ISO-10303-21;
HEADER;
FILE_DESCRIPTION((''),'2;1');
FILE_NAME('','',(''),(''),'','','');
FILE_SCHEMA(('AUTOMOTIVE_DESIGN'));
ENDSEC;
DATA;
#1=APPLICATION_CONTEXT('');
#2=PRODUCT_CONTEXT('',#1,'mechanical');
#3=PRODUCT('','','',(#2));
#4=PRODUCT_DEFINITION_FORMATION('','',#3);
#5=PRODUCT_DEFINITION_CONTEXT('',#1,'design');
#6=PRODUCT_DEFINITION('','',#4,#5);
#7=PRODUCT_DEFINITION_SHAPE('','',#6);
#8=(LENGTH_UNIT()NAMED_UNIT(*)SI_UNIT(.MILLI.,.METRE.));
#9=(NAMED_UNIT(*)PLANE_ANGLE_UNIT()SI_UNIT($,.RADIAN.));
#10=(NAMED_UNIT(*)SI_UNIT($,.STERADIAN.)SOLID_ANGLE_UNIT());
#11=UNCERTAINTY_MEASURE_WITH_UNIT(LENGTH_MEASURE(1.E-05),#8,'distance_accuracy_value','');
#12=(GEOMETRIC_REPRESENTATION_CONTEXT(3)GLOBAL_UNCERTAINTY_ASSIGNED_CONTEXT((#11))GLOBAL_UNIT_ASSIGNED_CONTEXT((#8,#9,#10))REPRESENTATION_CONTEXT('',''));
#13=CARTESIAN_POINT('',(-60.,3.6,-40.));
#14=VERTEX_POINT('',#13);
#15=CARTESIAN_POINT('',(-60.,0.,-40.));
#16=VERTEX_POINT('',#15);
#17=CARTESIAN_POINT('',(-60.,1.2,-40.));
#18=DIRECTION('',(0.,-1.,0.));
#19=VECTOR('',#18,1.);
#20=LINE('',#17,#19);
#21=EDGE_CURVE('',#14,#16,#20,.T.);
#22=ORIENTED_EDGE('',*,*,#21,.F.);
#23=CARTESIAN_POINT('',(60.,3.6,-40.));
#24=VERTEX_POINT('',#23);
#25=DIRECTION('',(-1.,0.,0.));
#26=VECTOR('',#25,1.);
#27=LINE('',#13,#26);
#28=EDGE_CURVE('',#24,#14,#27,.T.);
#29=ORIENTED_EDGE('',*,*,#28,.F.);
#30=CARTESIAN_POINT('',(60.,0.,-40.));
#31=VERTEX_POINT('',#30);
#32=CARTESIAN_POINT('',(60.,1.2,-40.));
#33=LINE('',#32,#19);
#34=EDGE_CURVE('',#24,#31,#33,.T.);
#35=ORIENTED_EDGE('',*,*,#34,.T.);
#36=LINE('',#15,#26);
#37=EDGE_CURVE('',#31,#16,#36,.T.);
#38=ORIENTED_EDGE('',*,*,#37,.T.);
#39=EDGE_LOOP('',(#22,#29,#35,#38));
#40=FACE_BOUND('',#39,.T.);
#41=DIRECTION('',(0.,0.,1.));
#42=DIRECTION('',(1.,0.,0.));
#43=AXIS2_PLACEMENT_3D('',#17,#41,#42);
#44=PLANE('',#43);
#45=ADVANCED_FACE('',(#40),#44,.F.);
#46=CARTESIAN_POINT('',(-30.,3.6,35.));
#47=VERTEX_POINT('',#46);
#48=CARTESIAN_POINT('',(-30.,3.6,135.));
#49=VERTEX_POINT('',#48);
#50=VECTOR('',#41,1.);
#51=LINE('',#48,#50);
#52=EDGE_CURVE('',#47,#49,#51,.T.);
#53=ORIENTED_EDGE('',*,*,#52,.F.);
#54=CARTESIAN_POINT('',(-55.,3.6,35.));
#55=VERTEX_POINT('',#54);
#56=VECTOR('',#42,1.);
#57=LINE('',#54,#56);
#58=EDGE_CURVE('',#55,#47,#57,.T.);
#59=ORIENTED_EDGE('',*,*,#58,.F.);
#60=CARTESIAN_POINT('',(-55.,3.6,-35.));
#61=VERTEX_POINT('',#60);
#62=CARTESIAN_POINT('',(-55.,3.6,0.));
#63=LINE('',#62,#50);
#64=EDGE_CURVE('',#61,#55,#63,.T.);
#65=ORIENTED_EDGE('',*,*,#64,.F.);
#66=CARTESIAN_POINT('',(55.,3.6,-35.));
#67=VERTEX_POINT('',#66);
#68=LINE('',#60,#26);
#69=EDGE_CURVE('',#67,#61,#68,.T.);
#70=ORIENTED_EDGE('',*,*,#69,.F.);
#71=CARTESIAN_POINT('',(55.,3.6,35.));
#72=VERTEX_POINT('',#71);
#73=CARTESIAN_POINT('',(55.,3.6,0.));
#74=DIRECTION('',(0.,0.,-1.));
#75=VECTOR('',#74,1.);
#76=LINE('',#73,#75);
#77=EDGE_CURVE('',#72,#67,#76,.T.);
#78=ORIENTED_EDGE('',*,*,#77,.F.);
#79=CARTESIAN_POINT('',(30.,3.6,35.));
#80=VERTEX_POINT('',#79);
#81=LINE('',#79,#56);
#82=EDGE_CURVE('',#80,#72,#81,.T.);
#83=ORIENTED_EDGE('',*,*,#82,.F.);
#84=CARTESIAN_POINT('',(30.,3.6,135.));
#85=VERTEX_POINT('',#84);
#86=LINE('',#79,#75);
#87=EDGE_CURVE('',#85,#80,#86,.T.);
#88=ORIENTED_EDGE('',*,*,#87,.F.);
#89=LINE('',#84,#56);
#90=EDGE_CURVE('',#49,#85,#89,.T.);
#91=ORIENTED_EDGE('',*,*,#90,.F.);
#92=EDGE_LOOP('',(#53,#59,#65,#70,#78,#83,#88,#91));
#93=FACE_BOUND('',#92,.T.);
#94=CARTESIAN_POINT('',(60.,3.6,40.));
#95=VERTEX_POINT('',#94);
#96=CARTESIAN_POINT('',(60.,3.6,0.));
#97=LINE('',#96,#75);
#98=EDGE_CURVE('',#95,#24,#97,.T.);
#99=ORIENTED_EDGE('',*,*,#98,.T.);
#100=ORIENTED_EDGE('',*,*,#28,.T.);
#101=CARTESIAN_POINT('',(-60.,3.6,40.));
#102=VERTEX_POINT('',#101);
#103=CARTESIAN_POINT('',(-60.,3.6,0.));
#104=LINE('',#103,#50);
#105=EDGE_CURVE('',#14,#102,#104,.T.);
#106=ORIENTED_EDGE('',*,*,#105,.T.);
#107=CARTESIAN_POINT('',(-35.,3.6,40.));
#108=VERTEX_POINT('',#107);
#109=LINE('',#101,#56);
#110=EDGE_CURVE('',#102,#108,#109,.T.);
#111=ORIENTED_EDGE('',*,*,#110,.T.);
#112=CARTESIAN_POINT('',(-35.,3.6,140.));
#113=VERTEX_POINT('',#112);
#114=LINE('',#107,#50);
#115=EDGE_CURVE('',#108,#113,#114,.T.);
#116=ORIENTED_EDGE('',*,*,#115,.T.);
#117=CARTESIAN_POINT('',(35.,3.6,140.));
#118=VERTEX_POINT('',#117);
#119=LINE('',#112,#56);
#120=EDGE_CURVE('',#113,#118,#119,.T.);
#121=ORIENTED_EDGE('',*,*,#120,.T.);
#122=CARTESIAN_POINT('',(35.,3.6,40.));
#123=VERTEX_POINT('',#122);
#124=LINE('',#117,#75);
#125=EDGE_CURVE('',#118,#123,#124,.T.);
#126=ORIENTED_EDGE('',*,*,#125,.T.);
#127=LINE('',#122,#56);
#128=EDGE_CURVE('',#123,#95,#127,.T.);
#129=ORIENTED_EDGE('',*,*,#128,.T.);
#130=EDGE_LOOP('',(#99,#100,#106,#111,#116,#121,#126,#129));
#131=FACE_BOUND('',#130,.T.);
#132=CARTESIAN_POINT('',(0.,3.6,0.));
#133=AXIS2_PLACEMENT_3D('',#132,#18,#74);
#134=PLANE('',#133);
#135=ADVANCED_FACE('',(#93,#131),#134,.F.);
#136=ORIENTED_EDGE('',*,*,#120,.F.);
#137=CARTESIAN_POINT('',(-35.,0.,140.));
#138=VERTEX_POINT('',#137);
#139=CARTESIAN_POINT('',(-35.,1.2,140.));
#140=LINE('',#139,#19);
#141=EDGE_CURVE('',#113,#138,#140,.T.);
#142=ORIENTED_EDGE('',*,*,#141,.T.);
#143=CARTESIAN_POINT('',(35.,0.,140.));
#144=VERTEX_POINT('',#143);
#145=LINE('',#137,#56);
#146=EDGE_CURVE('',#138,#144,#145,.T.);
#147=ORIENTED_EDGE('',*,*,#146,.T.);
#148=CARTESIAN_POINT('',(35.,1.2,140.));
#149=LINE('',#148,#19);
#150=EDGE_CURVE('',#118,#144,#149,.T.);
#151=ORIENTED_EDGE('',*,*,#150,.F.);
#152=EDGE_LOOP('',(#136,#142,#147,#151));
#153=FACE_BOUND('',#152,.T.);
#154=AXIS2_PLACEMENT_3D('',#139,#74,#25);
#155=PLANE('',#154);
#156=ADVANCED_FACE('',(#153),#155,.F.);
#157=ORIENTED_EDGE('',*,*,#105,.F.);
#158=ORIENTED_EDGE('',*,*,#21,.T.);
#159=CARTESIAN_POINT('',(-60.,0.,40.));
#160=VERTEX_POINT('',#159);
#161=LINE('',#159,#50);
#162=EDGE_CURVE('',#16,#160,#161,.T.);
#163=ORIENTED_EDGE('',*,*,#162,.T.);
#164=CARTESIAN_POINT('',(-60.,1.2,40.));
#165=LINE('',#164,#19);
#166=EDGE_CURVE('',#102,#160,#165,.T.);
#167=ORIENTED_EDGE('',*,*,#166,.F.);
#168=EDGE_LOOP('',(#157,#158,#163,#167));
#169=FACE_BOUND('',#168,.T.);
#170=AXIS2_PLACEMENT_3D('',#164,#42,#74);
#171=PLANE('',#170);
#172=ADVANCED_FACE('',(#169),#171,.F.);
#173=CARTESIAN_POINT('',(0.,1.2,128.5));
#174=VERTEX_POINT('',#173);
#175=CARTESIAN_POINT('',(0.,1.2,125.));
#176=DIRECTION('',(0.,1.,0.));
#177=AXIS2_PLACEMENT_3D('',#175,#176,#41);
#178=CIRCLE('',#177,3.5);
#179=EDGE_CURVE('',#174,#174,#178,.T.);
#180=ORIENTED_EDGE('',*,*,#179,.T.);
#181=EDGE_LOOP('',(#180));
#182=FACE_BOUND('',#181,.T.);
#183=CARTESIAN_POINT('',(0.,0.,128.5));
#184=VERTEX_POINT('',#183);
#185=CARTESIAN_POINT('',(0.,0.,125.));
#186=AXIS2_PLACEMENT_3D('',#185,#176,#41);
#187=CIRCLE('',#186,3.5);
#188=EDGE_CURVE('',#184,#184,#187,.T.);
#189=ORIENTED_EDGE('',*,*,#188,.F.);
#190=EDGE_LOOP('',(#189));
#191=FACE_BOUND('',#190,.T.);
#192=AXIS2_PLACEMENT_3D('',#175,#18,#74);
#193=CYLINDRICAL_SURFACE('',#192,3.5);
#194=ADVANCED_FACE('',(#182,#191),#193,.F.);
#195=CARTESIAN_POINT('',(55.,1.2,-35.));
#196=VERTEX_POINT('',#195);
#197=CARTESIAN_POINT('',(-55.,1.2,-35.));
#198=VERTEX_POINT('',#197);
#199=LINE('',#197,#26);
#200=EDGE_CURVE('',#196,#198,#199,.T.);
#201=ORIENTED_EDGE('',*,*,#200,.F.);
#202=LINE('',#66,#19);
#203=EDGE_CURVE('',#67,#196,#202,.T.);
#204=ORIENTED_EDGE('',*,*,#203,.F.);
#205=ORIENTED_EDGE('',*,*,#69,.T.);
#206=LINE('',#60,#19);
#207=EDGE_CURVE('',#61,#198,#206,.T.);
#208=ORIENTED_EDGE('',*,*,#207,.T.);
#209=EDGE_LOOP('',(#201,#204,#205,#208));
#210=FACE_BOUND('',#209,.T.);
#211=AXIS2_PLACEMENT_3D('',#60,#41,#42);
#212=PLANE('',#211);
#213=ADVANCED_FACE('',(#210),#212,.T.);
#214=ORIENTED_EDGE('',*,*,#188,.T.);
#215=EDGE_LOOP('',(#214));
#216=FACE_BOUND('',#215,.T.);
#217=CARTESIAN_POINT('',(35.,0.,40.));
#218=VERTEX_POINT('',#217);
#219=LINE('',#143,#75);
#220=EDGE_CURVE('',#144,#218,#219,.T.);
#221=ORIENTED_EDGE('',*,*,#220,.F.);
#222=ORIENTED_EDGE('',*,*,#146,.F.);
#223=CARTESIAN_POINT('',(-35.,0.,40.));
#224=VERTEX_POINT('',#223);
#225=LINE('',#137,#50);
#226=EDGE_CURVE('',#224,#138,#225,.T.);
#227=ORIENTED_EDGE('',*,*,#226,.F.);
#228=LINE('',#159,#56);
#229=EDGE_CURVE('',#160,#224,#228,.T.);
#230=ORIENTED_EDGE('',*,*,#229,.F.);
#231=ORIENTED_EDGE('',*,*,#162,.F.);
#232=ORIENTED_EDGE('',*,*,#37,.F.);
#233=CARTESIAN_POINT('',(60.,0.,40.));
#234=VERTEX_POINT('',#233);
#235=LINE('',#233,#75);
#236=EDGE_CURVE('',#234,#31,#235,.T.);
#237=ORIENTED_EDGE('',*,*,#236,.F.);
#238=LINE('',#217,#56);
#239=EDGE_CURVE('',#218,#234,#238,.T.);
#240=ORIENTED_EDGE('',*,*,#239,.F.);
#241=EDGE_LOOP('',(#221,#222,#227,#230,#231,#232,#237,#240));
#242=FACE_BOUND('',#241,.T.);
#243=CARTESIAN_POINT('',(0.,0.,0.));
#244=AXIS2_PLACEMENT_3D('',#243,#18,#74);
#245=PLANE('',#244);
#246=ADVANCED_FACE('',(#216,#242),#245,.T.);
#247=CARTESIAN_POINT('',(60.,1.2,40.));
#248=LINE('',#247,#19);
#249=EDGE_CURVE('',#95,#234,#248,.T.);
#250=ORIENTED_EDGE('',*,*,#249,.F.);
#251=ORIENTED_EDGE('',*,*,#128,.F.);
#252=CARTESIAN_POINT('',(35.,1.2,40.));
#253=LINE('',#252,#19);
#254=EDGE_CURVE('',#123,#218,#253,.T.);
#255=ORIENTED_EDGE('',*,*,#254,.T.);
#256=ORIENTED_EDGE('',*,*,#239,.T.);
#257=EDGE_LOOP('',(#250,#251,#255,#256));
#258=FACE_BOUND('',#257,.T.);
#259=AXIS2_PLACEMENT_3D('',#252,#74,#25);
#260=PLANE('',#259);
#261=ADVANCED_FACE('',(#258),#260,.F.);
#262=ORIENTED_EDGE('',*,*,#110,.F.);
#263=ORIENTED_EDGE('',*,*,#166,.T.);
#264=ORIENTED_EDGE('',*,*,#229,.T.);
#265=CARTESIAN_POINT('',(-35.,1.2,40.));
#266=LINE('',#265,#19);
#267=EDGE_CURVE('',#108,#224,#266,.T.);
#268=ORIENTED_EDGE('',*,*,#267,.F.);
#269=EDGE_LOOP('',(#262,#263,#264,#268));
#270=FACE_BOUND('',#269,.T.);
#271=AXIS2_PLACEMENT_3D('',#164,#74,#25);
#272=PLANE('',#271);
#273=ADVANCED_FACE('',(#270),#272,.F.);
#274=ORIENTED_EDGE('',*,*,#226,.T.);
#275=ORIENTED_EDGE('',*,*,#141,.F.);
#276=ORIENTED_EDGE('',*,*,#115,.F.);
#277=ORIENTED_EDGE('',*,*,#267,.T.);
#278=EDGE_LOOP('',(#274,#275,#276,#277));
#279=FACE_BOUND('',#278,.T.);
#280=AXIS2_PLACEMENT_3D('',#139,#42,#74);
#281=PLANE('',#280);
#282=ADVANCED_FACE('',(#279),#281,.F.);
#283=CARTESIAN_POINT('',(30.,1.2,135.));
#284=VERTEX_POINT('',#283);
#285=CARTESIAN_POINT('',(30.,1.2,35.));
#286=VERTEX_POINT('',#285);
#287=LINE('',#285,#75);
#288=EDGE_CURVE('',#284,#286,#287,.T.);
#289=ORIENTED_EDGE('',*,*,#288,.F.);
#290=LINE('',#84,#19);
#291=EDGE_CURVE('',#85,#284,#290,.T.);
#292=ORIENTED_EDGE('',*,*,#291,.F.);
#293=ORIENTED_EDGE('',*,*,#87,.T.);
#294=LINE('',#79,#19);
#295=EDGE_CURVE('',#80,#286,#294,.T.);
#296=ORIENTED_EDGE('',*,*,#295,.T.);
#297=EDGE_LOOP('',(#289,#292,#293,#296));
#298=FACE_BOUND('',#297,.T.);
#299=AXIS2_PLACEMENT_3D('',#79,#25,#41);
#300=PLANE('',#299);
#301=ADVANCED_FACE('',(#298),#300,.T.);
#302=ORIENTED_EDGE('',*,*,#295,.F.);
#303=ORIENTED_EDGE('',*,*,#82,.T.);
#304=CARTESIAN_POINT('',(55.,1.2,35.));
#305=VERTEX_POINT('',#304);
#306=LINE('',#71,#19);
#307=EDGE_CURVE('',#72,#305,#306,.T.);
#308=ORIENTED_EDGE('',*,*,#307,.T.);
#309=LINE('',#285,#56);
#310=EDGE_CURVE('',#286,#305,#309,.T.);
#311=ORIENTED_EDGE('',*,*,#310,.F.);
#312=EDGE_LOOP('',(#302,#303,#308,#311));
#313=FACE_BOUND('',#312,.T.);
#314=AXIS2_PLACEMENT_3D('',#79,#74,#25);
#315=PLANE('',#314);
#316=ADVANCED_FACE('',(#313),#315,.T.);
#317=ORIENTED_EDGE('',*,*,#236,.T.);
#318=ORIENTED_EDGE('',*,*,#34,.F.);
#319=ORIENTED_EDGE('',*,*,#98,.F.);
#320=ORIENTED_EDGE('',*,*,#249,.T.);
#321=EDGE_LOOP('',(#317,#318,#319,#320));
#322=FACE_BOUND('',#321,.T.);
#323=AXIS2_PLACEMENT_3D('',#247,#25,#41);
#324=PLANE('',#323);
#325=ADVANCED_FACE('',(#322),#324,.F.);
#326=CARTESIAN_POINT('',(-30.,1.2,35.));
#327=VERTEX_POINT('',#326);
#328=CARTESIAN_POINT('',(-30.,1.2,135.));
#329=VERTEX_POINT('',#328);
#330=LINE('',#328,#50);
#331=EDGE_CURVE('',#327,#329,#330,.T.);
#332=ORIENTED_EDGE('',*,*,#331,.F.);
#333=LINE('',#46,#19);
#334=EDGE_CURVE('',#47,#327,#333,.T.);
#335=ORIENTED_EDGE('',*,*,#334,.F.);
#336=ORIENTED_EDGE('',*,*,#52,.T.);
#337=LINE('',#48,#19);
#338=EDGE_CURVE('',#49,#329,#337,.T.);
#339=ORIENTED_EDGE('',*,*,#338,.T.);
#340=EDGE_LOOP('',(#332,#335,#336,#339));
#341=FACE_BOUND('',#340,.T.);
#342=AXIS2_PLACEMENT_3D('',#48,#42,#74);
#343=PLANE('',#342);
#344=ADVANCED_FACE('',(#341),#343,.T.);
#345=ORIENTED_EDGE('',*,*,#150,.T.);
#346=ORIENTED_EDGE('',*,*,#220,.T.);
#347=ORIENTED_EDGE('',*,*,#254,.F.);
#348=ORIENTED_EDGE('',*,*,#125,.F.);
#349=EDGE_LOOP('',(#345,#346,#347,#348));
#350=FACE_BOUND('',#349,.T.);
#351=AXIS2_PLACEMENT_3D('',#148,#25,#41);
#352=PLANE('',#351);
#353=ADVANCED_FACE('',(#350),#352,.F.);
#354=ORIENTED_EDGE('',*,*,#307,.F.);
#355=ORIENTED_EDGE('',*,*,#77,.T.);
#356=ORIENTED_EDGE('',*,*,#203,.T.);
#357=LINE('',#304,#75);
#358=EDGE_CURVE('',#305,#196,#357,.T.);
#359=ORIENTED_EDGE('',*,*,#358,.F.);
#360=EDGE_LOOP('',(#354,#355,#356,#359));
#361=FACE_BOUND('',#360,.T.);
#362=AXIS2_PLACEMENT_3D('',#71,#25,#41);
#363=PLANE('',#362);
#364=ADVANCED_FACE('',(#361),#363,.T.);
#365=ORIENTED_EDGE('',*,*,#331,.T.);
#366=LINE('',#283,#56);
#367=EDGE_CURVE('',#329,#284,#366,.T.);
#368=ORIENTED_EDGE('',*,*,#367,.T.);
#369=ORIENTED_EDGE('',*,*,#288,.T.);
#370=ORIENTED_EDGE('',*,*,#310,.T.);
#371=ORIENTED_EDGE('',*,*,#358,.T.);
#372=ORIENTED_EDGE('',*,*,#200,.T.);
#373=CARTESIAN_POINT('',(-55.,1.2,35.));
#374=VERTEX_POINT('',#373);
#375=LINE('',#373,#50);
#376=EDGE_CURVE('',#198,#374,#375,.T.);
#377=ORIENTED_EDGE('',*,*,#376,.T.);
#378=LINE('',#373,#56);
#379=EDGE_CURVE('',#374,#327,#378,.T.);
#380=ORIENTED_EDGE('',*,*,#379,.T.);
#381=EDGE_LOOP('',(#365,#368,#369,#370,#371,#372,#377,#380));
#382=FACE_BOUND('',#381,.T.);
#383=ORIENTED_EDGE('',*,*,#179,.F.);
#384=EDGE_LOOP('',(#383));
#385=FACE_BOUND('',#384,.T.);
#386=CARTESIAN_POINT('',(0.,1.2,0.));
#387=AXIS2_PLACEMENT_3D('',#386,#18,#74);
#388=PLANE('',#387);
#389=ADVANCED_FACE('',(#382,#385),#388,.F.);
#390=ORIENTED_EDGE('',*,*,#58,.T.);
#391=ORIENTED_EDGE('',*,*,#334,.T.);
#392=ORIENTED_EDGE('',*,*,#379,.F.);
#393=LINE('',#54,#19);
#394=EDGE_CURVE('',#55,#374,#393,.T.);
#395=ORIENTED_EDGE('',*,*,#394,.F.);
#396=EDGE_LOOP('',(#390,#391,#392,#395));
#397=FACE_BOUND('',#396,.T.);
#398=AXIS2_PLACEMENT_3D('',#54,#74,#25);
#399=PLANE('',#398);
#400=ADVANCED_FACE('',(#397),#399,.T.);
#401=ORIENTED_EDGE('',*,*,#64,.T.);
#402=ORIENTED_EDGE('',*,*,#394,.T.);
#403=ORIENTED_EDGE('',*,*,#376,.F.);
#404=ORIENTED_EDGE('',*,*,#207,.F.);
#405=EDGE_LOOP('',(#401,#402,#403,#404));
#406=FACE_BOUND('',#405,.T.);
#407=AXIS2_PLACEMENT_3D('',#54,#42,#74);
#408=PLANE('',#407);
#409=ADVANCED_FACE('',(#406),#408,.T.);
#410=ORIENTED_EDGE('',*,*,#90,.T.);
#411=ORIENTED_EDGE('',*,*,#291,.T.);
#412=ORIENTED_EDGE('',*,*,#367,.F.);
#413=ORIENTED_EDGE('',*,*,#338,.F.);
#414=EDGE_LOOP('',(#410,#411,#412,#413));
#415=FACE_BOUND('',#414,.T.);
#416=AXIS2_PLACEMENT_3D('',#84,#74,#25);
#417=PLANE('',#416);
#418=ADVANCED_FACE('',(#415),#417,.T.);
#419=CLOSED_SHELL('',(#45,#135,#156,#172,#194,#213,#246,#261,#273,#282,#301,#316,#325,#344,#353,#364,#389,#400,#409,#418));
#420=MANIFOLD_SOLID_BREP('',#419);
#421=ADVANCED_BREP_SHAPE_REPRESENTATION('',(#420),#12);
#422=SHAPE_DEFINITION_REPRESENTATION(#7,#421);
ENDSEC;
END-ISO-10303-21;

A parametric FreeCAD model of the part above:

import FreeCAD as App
import Part
import Sketcher


def add_polygon(sketch, points):
    """Adds a closed chain of lines whose ends are joined by coincident constraints."""
    first, n = sketch.GeometryCount, len(points)
    for a, b in zip(points, points[1:] + points[:1]):
        sketch.addGeometry(Part.LineSegment(App.Vector(*a, 0), App.Vector(*b, 0)), False)
    for i in range(n):
        sketch.addConstraint(Sketcher.Constraint("Coincident", first + i, 2, first + (i + 1) % n, 1))

doc = App.newDocument("Part")
body = doc.addObject("PartDesign::Body", "Body")

# Sketch on XZ plane
sketch1 = body.newObject("Sketcher::SketchObject", "Sketch")
sketch1.AttachmentSupport = (doc.getObject("XZ_Plane"), [""])
sketch1.MapMode = "FlatFace"
add_polygon(sketch1, [(-60, 40), (-35, 40), (-35, 140), (35, 140), (35, 40), (60, 40), (60, -40), (-60, -40)])  # lines 0-7
sketch1.addGeometry(Part.Circle(App.Vector(0, 125, 0), App.Vector(0, 0, 1), 3.5), False)  # 8
sketch1.addConstraint([
    Sketcher.Constraint("Horizontal", 0),
    Sketcher.Constraint("Vertical", 1),
    Sketcher.Constraint("Horizontal", 2),
    Sketcher.Constraint("Vertical", 3),
    Sketcher.Constraint("Horizontal", 4),
    Sketcher.Constraint("Vertical", 5),
    Sketcher.Constraint("Horizontal", 6),
    Sketcher.Constraint("Vertical", 7),
    Sketcher.Constraint("Symmetric", 4, 2, 6, 2, -1, 1),
    Sketcher.Constraint("Symmetric", 0, 2, 3, 2, -2),
    Sketcher.Constraint("PointOnObject", 8, 3, -2),
    Sketcher.Constraint("Diameter", 8, 7.0),
    Sketcher.Constraint("DistanceX", 0, 1, 0, 2, 25.0),
    Sketcher.Constraint("DistanceX", 2, 1, 2, 2, 70.0),
    Sketcher.Constraint("DistanceY", 1, 1, 1, 2, 100.0),
    Sketcher.Constraint("DistanceY", 5, 2, 5, 1, 80.0),
    Sketcher.Constraint("DistanceY", -1, 1, 8, 3, 125.0),
])
pad1 = body.newObject("PartDesign::Pad", "Pad")
pad1.Profile = sketch1
pad1.Length = 1.2
pad1.Reversed = True

# Sketch on XZ plane
sketch2 = body.newObject("Sketcher::SketchObject", "Sketch001")
sketch2.AttachmentSupport = (doc.getObject("XZ_Plane"), [""])
sketch2.MapMode = "FlatFace"
sketch2.AttachmentOffset = App.Placement(App.Vector(0, 0, -1.2), App.Rotation())
add_polygon(sketch2, [(-60, 40), (-35, 40), (-35, 140), (35, 140), (35, 40), (60, 40), (60, -40), (-60, -40)])  # lines 0-7
add_polygon(sketch2, [(-30, 35), (-55, 35), (-55, -35), (55, -35), (55, 35), (30, 35), (30, 135), (-30, 135)])  # lines 8-15
sketch2.addConstraint([
    Sketcher.Constraint("Horizontal", 0),
    Sketcher.Constraint("Vertical", 1),
    Sketcher.Constraint("Horizontal", 2),
    Sketcher.Constraint("Vertical", 3),
    Sketcher.Constraint("Horizontal", 4),
    Sketcher.Constraint("Vertical", 5),
    Sketcher.Constraint("Horizontal", 6),
    Sketcher.Constraint("Vertical", 7),
    Sketcher.Constraint("Horizontal", 8),
    Sketcher.Constraint("Vertical", 9),
    Sketcher.Constraint("Horizontal", 10),
    Sketcher.Constraint("Vertical", 11),
    Sketcher.Constraint("Horizontal", 12),
    Sketcher.Constraint("Vertical", 13),
    Sketcher.Constraint("Horizontal", 14),
    Sketcher.Constraint("Vertical", 15),
    Sketcher.Constraint("Symmetric", 4, 2, 6, 2, -1, 1),
    Sketcher.Constraint("Symmetric", 8, 2, 10, 2, -1, 1),
    Sketcher.Constraint("Symmetric", 0, 2, 3, 2, -2),
    Sketcher.Constraint("Symmetric", 12, 2, 15, 2, -2),
    Sketcher.Constraint("Equal", 4, 8),
    Sketcher.Constraint("Equal", 2, 9),
    Sketcher.Constraint("Equal", 3, 13),
    Sketcher.Constraint("DistanceX", 0, 1, 0, 2, 25.0),
    Sketcher.Constraint("DistanceX", 2, 1, 2, 2, 70.0),
    Sketcher.Constraint("DistanceX", 10, 1, 10, 2, 110.0),
    Sketcher.Constraint("DistanceY", 1, 1, 1, 2, 100.0),
    Sketcher.Constraint("DistanceY", 5, 2, 5, 1, 80.0),
])
pad2 = body.newObject("PartDesign::Pad", "Pad001")
pad2.Profile = sketch2
pad2.Length = 2.4
pad2.Reversed = True

doc.recompute()
